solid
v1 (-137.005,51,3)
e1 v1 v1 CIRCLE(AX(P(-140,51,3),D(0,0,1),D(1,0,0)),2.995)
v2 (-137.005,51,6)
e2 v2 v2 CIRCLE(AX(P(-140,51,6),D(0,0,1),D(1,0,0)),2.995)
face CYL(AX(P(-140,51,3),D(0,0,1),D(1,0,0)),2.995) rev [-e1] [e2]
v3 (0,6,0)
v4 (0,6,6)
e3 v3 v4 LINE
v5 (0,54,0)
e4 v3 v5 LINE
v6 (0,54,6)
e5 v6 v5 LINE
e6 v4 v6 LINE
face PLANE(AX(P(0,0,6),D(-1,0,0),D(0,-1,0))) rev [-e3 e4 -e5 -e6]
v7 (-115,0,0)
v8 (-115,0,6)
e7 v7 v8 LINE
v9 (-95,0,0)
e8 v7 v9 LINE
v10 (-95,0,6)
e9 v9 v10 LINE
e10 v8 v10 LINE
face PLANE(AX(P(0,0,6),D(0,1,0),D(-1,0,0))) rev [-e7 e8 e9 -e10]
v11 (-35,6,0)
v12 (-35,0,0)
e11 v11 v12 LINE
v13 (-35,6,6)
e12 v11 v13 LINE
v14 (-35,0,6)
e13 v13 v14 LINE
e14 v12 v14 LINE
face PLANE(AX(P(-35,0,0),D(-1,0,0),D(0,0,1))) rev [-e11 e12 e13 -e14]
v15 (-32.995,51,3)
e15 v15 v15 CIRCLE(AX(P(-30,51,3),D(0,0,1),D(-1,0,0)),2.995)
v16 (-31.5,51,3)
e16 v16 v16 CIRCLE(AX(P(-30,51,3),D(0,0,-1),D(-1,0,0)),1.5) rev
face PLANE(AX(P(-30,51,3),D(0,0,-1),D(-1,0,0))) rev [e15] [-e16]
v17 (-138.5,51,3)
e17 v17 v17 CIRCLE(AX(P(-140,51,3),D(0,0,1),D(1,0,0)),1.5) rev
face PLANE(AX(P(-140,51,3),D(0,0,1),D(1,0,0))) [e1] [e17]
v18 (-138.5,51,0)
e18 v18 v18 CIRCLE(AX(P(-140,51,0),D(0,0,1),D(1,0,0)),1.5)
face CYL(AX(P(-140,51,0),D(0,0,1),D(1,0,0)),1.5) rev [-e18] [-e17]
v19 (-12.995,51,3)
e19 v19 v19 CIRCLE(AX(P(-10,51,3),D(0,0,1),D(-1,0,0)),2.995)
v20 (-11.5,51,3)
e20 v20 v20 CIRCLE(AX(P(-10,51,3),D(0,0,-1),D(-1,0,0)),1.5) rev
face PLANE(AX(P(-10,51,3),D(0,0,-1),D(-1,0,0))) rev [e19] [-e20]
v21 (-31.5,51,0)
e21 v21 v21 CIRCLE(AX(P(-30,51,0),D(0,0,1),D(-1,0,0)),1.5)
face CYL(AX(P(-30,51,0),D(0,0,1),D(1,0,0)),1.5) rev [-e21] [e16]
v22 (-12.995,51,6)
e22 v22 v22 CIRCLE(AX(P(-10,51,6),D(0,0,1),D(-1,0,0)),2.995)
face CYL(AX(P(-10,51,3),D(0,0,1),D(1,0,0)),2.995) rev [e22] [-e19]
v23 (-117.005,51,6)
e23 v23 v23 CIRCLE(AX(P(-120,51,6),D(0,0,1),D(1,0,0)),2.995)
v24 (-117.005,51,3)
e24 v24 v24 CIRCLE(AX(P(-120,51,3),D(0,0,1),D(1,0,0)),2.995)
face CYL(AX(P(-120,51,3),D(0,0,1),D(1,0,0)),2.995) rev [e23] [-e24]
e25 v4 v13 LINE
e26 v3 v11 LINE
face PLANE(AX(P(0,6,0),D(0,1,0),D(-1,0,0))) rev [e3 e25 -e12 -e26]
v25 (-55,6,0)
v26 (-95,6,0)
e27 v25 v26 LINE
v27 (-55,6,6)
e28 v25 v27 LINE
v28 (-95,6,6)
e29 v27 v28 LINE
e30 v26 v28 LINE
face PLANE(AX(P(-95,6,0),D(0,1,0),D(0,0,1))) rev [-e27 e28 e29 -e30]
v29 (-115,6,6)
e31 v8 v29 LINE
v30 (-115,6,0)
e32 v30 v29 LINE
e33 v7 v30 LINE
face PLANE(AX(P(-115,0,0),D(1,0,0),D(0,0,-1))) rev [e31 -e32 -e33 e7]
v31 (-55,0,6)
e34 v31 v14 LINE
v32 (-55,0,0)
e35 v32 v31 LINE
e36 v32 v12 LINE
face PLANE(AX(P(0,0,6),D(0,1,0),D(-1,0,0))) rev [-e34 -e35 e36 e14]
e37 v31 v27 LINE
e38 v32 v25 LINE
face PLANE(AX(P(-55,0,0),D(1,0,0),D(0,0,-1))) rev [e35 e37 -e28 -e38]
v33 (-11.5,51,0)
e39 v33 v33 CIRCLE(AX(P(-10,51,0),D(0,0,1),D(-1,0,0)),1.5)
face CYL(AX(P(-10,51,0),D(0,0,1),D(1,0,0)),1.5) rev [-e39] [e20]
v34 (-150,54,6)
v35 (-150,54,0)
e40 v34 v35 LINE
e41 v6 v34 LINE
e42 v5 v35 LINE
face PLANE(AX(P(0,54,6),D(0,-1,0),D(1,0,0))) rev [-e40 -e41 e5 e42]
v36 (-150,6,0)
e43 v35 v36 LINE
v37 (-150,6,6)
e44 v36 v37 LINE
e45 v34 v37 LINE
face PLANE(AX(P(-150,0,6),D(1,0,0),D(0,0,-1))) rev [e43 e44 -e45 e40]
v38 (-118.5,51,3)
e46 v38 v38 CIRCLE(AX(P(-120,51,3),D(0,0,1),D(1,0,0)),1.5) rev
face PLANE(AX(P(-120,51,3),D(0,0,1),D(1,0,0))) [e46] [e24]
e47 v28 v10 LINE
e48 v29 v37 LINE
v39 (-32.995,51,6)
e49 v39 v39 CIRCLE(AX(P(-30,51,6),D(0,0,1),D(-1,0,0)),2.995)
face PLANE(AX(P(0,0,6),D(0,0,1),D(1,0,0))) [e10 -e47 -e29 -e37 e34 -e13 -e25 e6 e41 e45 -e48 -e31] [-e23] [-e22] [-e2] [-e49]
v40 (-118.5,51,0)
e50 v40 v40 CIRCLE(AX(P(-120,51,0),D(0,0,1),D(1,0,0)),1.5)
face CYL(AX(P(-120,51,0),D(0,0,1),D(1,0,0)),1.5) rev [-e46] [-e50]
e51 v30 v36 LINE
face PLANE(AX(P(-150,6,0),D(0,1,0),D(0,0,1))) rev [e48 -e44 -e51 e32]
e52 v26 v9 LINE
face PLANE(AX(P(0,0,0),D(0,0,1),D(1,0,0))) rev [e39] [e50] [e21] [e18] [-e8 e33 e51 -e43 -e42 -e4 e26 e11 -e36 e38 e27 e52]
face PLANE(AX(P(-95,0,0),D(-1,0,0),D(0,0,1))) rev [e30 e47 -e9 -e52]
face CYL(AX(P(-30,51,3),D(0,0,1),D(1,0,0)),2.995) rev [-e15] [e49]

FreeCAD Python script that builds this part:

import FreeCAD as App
import Part
import Sketcher

doc = App.newDocument("Part")
body = doc.addObject("PartDesign::Body", "Body")

# Sketch on XY plane
sketch1 = body.newObject("Sketcher::SketchObject", "Sketch")
sketch1.AttachmentSupport = (doc.getObject("XY_Plane"), [""])
sketch1.MapMode = "FlatFace"
sketch1.addGeometry(Part.LineSegment(App.Vector(-150, 54, 0), App.Vector(-150, 0, 0)), False)
sketch1.addGeometry(Part.LineSegment(App.Vector(-150, 0, 0), App.Vector(0, 0, 0)), False)
sketch1.addGeometry(Part.LineSegment(App.Vector(0, 0, 0), App.Vector(0, 54, 0)), False)
sketch1.addGeometry(Part.LineSegment(App.Vector(0, 54, 0), App.Vector(-150, 54, 0)), False)
sketch1.addConstraint(Sketcher.Constraint("Coincident", 0, 2, 1, 1))
sketch1.addConstraint(Sketcher.Constraint("Coincident", 1, 2, 2, 1))
sketch1.addConstraint(Sketcher.Constraint("Coincident", 2, 2, 3, 1))
sketch1.addConstraint(Sketcher.Constraint("Coincident", 3, 2, 0, 1))
sketch1.addConstraint(Sketcher.Constraint("Vertical", 0))
sketch1.addConstraint(Sketcher.Constraint("Horizontal", 1))
sketch1.addConstraint(Sketcher.Constraint("Vertical", 2))
sketch1.addConstraint(Sketcher.Constraint("Horizontal", 3))
sketch1.addConstraint(Sketcher.Constraint("Coincident", 1, 2, -1, 1))
sketch1.addConstraint(Sketcher.Constraint("DistanceX", 1, 1, 1, 2, 150.0))
sketch1.addConstraint(Sketcher.Constraint("DistanceY", 0, 2, 0, 1, 54.0))
pad1 = body.newObject("PartDesign::Pad", "Pad")
pad1.Profile = sketch1
pad1.Length = 6

# Sketch on XY plane
sketch2 = body.newObject("Sketcher::SketchObject", "Sketch001")
sketch2.AttachmentSupport = (doc.getObject("XY_Plane"), [""])
sketch2.MapMode = "FlatFace"
sketch2.AttachmentOffset = App.Placement(App.Vector(0, 0, 6), App.Rotation())
sketch2.addGeometry(Part.LineSegment(App.Vector(-35, 6, 0), App.Vector(-35, 0, 0)), False)
sketch2.addGeometry(Part.LineSegment(App.Vector(-35, 0, 0), App.Vector(0, 0, 0)), False)
sketch2.addGeometry(Part.LineSegment(App.Vector(0, 0, 0), App.Vector(0, 6, 0)), False)
sketch2.addGeometry(Part.LineSegment(App.Vector(0, 6, 0), App.Vector(-35, 6, 0)), False)
sketch2.addGeometry(Part.LineSegment(App.Vector(-95, 6, 0), App.Vector(-95, 0, 0)), False)
sketch2.addGeometry(Part.LineSegment(App.Vector(-95, 0, 0), App.Vector(-55, 0, 0)), False)
sketch2.addGeometry(Part.LineSegment(App.Vector(-55, 0, 0), App.Vector(-55, 6, 0)), False)
sketch2.addGeometry(Part.LineSegment(App.Vector(-55, 6, 0), App.Vector(-95, 6, 0)), False)
sketch2.addGeometry(Part.LineSegment(App.Vector(-150, 6, 0), App.Vector(-150, 0, 0)), False)
sketch2.addGeometry(Part.LineSegment(App.Vector(-150, 0, 0), App.Vector(-115, 0, 0)), False)
sketch2.addGeometry(Part.LineSegment(App.Vector(-115, 0, 0), App.Vector(-115, 6, 0)), False)
sketch2.addGeometry(Part.LineSegment(App.Vector(-115, 6, 0), App.Vector(-150, 6, 0)), False)
sketch2.addConstraint(Sketcher.Constraint("Coincident", 0, 2, 1, 1))
sketch2.addConstraint(Sketcher.Constraint("Coincident", 1, 2, 2, 1))
sketch2.addConstraint(Sketcher.Constraint("Coincident", 2, 2, 3, 1))
sketch2.addConstraint(Sketcher.Constraint("Coincident", 3, 2, 0, 1))
sketch2.addConstraint(Sketcher.Constraint("Coincident", 4, 2, 5, 1))
sketch2.addConstraint(Sketcher.Constraint("Coincident", 5, 2, 6, 1))
sketch2.addConstraint(Sketcher.Constraint("Coincident", 6, 2, 7, 1))
sketch2.addConstraint(Sketcher.Constraint("Coincident", 7, 2, 4, 1))
sketch2.addConstraint(Sketcher.Constraint("Coincident", 8, 2, 9, 1))
sketch2.addConstraint(Sketcher.Constraint("Coincident", 9, 2, 10, 1))
sketch2.addConstraint(Sketcher.Constraint("Coincident", 10, 2, 11, 1))
sketch2.addConstraint(Sketcher.Constraint("Coincident", 11, 2, 8, 1))
sketch2.addConstraint(Sketcher.Constraint("Vertical", 0))
sketch2.addConstraint(Sketcher.Constraint("Horizontal", 1))
sketch2.addConstraint(Sketcher.Constraint("Vertical", 2))
sketch2.addConstraint(Sketcher.Constraint("Horizontal", 3))
sketch2.addConstraint(Sketcher.Constraint("Vertical", 4))
sketch2.addConstraint(Sketcher.Constraint("Horizontal", 5))
sketch2.addConstraint(Sketcher.Constraint("Vertical", 6))
sketch2.addConstraint(Sketcher.Constraint("Horizontal", 7))
sketch2.addConstraint(Sketcher.Constraint("Vertical", 8))
sketch2.addConstraint(Sketcher.Constraint("Horizontal", 9))
sketch2.addConstraint(Sketcher.Constraint("Vertical", 10))
sketch2.addConstraint(Sketcher.Constraint("Horizontal", 11))
sketch2.addConstraint(Sketcher.Constraint("Coincident", 1, 2, -1, 1))
sketch2.addConstraint(Sketcher.Constraint("PointOnObject", 4, 2, -1))
sketch2.addConstraint(Sketcher.Constraint("PointOnObject", 8, 2, -1))
sketch2.addConstraint(Sketcher.Constraint("Horizontal", 3, 2, 6, 2))
sketch2.addConstraint(Sketcher.Constraint("Horizontal", 7, 2, 10, 2))
sketch2.addConstraint(Sketcher.Constraint("Equal", 3, 9))
sketch2.addConstraint(Sketcher.Constraint("DistanceX", 1, 1, 1, 2, 35.0))
sketch2.addConstraint(Sketcher.Constraint("DistanceX", 5, 1, 5, 2, 40.0))
sketch2.addConstraint(Sketcher.Constraint("DistanceY", 0, 2, 0, 1, 6.0))
sketch2.addConstraint(Sketcher.Constraint("DistanceX", 4, 2, -1, 1, 95.0))
sketch2.addConstraint(Sketcher.Constraint("DistanceX", 8, 2, -1, 1, 150.0))
pocket1 = body.newObject("PartDesign::Pocket", "Pocket")
pocket1.Profile = sketch2
pocket1.Type = "ThroughAll"

# Sketch on XY plane
sketch3 = body.newObject("Sketcher::SketchObject", "Sketch002")
sketch3.AttachmentSupport = (doc.getObject("XY_Plane"), [""])
sketch3.MapMode = "FlatFace"
sketch3.AttachmentOffset = App.Placement(App.Vector(0, 0, 6), App.Rotation())
sketch3.addGeometry(Part.Circle(App.Vector(-140, 51, 0), App.Vector(0, 0, 1), 1.5), False)
sketch3.addGeometry(Part.Circle(App.Vector(-120, 51, 0), App.Vector(0, 0, 1), 1.5), False)
sketch3.addGeometry(Part.Circle(App.Vector(-30, 51, 0), App.Vector(0, 0, 1), 1.5), False)
sketch3.addGeometry(Part.Circle(App.Vector(-10, 51, 0), App.Vector(0, 0, 1), 1.5), False)
sketch3.addConstraint(Sketcher.Constraint("Equal", 0, 1))
sketch3.addConstraint(Sketcher.Constraint("Equal", 1, 2))
sketch3.addConstraint(Sketcher.Constraint("Equal", 2, 3))
sketch3.addConstraint(Sketcher.Constraint("Horizontal", 0, 3, 1, 3))
sketch3.addConstraint(Sketcher.Constraint("Horizontal", 1, 3, 2, 3))
sketch3.addConstraint(Sketcher.Constraint("Horizontal", 2, 3, 3, 3))
sketch3.addConstraint(Sketcher.Constraint("Diameter", 0, 3.0))
sketch3.addConstraint(Sketcher.Constraint("DistanceX", 0, 3, -1, 1, 140.0))
sketch3.addConstraint(Sketcher.Constraint("DistanceY", -1, 1, 0, 3, 51.0))
sketch3.addConstraint(Sketcher.Constraint("DistanceX", 1, 3, -1, 1, 120.0))
sketch3.addConstraint(Sketcher.Constraint("DistanceX", 2, 3, -1, 1, 30.0))
sketch3.addConstraint(Sketcher.Constraint("DistanceX", 3, 3, -1, 1, 10.0))
pocket2 = body.newObject("PartDesign::Pocket", "Pocket001")
pocket2.Profile = sketch3
pocket2.Length = 6

# Sketch on XY plane
sketch4 = body.newObject("Sketcher::SketchObject", "Sketch003")
sketch4.AttachmentSupport = (doc.getObject("XY_Plane"), [""])
sketch4.MapMode = "FlatFace"
sketch4.AttachmentOffset = App.Placement(App.Vector(0, 0, 6), App.Rotation())
sketch4.addGeometry(Part.Circle(App.Vector(-140, 51, 0), App.Vector(0, 0, 1), 3), False)
sketch4.addGeometry(Part.Circle(App.Vector(-120, 51, 0), App.Vector(0, 0, 1), 3), False)
sketch4.addGeometry(Part.Circle(App.Vector(-30, 51, 0), App.Vector(0, 0, 1), 3), False)
sketch4.addGeometry(Part.Circle(App.Vector(-10, 51, 0), App.Vector(0, 0, 1), 3), False)
sketch4.addConstraint(Sketcher.Constraint("Equal", 0, 1))
sketch4.addConstraint(Sketcher.Constraint("Equal", 1, 2))
sketch4.addConstraint(Sketcher.Constraint("Equal", 2, 3))
sketch4.addConstraint(Sketcher.Constraint("Horizontal", 0, 3, 1, 3))
sketch4.addConstraint(Sketcher.Constraint("Horizontal", 1, 3, 2, 3))
sketch4.addConstraint(Sketcher.Constraint("Horizontal", 2, 3, 3, 3))
sketch4.addConstraint(Sketcher.Constraint("Diameter", 0, 5.99))
sketch4.addConstraint(Sketcher.Constraint("DistanceX", 0, 3, -1, 1, 140.0))
sketch4.addConstraint(Sketcher.Constraint("DistanceY", -1, 1, 0, 3, 51.0))
sketch4.addConstraint(Sketcher.Constraint("DistanceX", 1, 3, -1, 1, 120.0))
sketch4.addConstraint(Sketcher.Constraint("DistanceX", 2, 3, -1, 1, 30.0))
sketch4.addConstraint(Sketcher.Constraint("DistanceX", 3, 3, -1, 1, 10.0))
pocket3 = body.newObject("PartDesign::Pocket", "Pocket002")
pocket3.Profile = sketch4
pocket3.Length = 3

doc.recompute()
